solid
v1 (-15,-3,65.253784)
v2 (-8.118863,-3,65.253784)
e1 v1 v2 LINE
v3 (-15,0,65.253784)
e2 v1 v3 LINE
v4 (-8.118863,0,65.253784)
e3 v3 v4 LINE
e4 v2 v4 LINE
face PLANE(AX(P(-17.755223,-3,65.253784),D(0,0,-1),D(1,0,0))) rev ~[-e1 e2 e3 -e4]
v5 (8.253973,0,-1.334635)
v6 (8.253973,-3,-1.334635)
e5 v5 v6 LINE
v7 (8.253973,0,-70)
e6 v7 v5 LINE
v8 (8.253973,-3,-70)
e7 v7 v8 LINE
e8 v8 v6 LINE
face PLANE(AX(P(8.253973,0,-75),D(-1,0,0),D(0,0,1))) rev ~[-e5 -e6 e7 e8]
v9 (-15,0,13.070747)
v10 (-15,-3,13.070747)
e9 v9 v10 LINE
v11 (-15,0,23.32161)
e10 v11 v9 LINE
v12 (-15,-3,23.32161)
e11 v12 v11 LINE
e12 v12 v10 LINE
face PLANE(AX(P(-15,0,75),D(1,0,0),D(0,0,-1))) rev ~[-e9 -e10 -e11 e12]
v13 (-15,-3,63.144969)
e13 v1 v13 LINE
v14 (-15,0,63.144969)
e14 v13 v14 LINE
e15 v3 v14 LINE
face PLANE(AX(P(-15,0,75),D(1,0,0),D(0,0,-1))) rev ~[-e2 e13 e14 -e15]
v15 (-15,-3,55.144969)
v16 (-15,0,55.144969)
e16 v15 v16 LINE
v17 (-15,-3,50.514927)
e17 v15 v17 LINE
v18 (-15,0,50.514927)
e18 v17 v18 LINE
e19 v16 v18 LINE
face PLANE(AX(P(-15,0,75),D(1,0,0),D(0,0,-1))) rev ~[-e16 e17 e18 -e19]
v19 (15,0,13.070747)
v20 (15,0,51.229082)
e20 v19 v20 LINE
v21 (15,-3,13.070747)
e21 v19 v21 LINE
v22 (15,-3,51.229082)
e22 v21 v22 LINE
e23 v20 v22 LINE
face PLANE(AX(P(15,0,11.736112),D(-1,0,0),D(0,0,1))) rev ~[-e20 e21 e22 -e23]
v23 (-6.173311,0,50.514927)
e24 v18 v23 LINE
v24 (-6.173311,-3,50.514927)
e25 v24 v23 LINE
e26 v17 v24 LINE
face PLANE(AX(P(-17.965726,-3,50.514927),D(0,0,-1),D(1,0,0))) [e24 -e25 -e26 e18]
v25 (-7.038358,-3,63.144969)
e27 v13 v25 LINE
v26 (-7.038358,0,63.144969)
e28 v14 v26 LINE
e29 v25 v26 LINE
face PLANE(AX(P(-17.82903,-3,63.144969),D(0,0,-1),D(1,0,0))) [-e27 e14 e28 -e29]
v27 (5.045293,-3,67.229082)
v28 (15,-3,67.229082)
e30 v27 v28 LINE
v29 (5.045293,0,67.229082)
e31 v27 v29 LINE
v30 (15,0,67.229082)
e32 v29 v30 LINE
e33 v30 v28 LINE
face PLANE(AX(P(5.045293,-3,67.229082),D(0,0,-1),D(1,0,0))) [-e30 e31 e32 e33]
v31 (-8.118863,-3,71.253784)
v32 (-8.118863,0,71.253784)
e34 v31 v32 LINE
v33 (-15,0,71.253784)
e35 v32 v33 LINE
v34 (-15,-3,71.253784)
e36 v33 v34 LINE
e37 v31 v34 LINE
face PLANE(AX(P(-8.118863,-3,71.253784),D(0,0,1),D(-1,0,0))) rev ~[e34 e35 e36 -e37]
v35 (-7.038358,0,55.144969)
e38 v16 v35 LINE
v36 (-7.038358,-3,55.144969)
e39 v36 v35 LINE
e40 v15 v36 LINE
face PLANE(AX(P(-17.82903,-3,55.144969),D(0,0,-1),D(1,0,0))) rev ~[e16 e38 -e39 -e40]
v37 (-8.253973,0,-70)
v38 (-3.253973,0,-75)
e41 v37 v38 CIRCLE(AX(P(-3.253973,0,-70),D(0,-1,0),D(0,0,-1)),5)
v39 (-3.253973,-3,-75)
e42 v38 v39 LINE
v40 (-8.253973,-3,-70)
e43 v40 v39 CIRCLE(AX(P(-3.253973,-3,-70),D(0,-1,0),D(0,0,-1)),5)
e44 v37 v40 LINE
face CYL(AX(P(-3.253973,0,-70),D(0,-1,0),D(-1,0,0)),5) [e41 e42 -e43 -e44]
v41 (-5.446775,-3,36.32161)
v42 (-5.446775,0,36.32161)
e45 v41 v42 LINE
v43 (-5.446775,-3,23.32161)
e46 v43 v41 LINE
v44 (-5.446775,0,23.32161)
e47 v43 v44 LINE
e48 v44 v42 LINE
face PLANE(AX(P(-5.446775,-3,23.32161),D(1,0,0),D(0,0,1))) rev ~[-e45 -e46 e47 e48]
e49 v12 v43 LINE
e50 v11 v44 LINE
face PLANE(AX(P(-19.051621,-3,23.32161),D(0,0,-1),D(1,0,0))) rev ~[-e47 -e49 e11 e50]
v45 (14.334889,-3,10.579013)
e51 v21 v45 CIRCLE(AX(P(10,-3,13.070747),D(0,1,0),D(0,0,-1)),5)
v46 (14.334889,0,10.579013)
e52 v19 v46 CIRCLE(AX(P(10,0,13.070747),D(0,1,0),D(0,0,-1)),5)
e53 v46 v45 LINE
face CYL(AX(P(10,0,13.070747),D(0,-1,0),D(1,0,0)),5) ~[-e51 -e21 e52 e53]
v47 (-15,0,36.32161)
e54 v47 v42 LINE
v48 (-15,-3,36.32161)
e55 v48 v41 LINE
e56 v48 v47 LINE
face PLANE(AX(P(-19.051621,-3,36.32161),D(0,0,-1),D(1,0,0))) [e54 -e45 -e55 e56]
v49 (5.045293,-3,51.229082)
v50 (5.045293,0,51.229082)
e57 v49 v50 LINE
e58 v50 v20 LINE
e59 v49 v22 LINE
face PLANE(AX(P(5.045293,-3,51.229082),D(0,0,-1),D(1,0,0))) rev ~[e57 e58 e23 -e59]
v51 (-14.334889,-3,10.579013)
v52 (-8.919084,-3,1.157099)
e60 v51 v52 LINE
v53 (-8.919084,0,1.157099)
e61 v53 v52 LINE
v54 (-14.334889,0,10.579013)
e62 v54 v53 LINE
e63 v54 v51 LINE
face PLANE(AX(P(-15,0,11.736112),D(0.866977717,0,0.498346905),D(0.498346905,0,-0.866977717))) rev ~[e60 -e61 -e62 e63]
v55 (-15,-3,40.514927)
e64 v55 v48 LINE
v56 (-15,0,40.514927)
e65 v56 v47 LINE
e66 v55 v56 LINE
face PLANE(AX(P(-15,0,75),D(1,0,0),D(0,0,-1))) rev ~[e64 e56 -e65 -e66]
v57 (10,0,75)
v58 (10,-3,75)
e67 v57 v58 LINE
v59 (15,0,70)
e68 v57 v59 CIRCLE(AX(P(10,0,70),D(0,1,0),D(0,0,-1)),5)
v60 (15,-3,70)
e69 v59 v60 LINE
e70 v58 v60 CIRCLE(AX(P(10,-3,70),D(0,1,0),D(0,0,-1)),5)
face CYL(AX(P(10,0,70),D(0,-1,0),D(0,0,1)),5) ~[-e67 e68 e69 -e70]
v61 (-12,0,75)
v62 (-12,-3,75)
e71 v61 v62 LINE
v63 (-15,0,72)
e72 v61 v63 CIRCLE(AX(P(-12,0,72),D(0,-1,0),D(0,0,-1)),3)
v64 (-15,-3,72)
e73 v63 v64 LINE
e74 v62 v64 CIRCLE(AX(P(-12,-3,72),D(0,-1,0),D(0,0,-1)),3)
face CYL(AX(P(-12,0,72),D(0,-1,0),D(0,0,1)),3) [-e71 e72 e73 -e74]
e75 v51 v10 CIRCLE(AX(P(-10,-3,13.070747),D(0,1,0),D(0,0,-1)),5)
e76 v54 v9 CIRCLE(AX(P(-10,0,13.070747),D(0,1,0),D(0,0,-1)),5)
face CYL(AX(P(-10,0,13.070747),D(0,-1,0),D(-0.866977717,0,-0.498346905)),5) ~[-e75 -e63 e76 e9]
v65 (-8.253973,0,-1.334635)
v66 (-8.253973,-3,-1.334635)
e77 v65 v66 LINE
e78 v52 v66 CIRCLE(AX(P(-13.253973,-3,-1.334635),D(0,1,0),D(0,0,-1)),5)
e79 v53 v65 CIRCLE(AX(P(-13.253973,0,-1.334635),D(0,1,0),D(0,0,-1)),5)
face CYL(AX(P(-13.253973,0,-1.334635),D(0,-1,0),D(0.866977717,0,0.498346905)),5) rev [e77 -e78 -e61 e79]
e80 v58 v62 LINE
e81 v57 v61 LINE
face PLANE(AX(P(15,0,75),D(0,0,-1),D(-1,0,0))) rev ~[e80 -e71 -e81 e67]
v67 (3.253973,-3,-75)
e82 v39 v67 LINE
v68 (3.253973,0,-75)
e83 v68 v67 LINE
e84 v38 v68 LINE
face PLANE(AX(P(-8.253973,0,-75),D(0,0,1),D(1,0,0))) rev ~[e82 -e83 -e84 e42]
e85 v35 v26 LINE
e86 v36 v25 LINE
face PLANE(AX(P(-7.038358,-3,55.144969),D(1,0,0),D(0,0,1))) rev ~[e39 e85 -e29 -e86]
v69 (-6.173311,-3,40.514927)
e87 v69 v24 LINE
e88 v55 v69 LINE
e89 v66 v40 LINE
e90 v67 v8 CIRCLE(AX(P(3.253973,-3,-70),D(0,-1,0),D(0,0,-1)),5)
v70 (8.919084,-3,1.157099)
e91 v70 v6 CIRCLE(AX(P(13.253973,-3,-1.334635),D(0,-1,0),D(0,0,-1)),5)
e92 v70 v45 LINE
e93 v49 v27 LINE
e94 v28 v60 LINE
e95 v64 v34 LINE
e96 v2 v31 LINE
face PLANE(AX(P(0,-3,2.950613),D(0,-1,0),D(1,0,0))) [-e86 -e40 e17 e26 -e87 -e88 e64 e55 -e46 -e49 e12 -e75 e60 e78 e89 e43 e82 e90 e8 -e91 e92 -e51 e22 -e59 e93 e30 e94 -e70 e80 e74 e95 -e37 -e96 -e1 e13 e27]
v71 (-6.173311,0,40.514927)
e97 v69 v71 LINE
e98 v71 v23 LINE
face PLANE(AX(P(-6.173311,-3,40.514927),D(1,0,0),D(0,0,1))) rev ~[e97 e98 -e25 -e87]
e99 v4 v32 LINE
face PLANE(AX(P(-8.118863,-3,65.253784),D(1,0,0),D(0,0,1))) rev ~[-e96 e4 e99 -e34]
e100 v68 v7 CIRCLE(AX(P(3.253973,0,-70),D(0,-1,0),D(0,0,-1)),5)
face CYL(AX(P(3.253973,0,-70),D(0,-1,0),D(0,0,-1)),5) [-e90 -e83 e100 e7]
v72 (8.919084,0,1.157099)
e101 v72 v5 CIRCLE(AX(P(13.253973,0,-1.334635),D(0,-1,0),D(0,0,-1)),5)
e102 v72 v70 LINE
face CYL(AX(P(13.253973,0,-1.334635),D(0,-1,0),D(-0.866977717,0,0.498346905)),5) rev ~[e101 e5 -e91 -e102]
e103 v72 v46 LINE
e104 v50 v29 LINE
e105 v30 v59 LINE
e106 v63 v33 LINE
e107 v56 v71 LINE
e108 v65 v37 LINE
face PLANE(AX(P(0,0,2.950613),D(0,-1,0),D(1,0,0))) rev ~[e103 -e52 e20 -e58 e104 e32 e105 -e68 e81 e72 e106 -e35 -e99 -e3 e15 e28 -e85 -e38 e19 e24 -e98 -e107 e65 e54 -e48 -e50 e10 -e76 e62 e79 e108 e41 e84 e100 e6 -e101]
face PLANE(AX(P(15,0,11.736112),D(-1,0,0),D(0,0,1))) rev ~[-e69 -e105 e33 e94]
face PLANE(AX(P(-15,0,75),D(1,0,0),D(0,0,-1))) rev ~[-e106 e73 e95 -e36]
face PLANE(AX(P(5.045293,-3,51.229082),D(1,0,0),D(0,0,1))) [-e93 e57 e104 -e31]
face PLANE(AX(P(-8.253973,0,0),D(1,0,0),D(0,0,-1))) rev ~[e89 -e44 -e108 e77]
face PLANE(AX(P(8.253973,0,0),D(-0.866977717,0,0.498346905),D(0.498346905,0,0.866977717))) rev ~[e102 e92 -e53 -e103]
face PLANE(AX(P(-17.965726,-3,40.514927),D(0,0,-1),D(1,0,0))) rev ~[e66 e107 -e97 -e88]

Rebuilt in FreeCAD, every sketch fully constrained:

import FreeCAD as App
import Part
import Sketcher


def edges_at(feature, points):
    """Names of the edges that pass closest to the given points."""
    edges = feature.Shape.Edges
    near = lambda p: min(range(len(edges)), key=lambda i: edges[i].distToShape(Part.Vertex(*p))[0])
    return sorted({f"Edge{near(p) + 1}" for p in points})


def add_polygon(sketch, points):
    """Adds a closed chain of lines whose ends are joined by coincident constraints."""
    first, n = sketch.GeometryCount, len(points)
    for a, b in zip(points, points[1:] + points[:1]):
        sketch.addGeometry(Part.LineSegment(App.Vector(*a, 0), App.Vector(*b, 0)), False)
    for i in range(n):
        sketch.addConstraint(Sketcher.Constraint("Coincident", first + i, 2, first + (i + 1) % n, 1))

doc = App.newDocument("Part")
body = doc.addObject("PartDesign::Body", "Body")

# Sketch on XZ plane
sketch1 = body.newObject("Sketcher::SketchObject", "Sketch")
sketch1.AttachmentSupport = (doc.getObject("XZ_Plane"), [""])
sketch1.MapMode = "FlatFace"
add_polygon(sketch1, [(15, 75), (-15, 75), (-15, 11.736112), (-8.253973, 0), (-8.253973, -75), (8.253973, -75), (8.253973, 0), (15, 11.736112)])  # lines 0-7
sketch1.addConstraint([
    Sketcher.Constraint("Horizontal", 0),
    Sketcher.Constraint("Vertical", 1),
    Sketcher.Constraint("Vertical", 3),
    Sketcher.Constraint("Horizontal", 4),
    Sketcher.Constraint("Vertical", 5),
    Sketcher.Constraint("Vertical", 7),
    Sketcher.Constraint("Symmetric", 2, 2, 5, 2, -1, 1),
    Sketcher.Constraint("Symmetric", 1, 2, 6, 2, -2),
    Sketcher.Constraint("PointOnObject", 2, 2, -1),
    Sketcher.Constraint("DistanceX", 0, 2, 0, 1, 30.0),
    Sketcher.Constraint("DistanceY", 3, 2, 3, 1, 75.0),
    Sketcher.Constraint("DistanceY", -1, 1, 0, 2, 75.0),
    Sketcher.Constraint("Distance", 2, 13.536809),
    Sketcher.Constraint("DistanceX", 4, 1, 4, 2, 16.507946),
])
pad1 = body.newObject("PartDesign::Pad", "Pad")
pad1.Profile = sketch1
pad1.Length = 3

# Sketch on XZ plane
sketch2 = body.newObject("Sketcher::SketchObject", "Sketch001")
sketch2.AttachmentSupport = (doc.getObject("XZ_Plane"), [""])
sketch2.MapMode = "FlatFace"
sketch2.AttachmentOffset = App.Placement(App.Vector(0, 0, 3), App.Rotation())
add_polygon(sketch2, [(-8.118863, 71.253784), (-17.755223, 71.253784), (-17.755223, 65.253784), (-8.118863, 65.253784)])  # lines 0-3
add_polygon(sketch2, [(-17.82903, 63.144969), (-17.82903, 55.144969), (-7.038358, 55.144969), (-7.038358, 63.144969)])  # lines 4-7
add_polygon(sketch2, [(-17.965726, 50.514927), (-17.965726, 40.514927), (-6.173311, 40.514927), (-6.173311, 50.514927)])  # lines 8-11
add_polygon(sketch2, [(-19.051621, 36.32161), (-19.051621, 23.32161), (-5.446775, 23.32161), (-5.446775, 36.32161)])  # lines 12-15
add_polygon(sketch2, [(5.045293, 67.229082), (5.045293, 51.229082), (23.864356, 51.229082), (23.864356, 67.229082)])  # lines 16-19
sketch2.addConstraint([
    Sketcher.Constraint("Horizontal", 0),
    Sketcher.Constraint("Vertical", 1),
    Sketcher.Constraint("Horizontal", 2),
    Sketcher.Constraint("Vertical", 3),
    Sketcher.Constraint("Vertical", 4),
    Sketcher.Constraint("Horizontal", 5),
    Sketcher.Constraint("Vertical", 6),
    Sketcher.Constraint("Horizontal", 7),
    Sketcher.Constraint("Vertical", 8),
    Sketcher.Constraint("Horizontal", 9),
    Sketcher.Constraint("Vertical", 10),
    Sketcher.Constraint("Horizontal", 11),
    Sketcher.Constraint("Vertical", 12),
    Sketcher.Constraint("Horizontal", 13),
    Sketcher.Constraint("Vertical", 14),
    Sketcher.Constraint("Horizontal", 15),
    Sketcher.Constraint("Vertical", 16),
    Sketcher.Constraint("Horizontal", 17),
    Sketcher.Constraint("Vertical", 18),
    Sketcher.Constraint("Horizontal", 19),
    Sketcher.Constraint("DistanceY", 1, 2, 1, 1, 6.0),
    Sketcher.Constraint("DistanceY", 4, 2, 4, 1, 8.0),
    Sketcher.Constraint("DistanceY", 8, 2, 8, 1, 10.0),
    Sketcher.Constraint("DistanceY", 12, 2, 12, 1, 13.0),
    Sketcher.Constraint("DistanceY", 16, 2, 16, 1, 16.0),
    Sketcher.Constraint("DistanceX", 0, 2, 0, 1, 9.63636),
    Sketcher.Constraint("DistanceY", 2, 2, 18, 2, 1.975298),
    Sketcher.Constraint("DistanceX", 5, 1, 5, 2, 10.790673),
    Sketcher.Constraint("DistanceX", 9, 1, 9, 2, 11.792415),
    Sketcher.Constraint("DistanceX", 13, 1, 13, 2, 13.604847),
    Sketcher.Constraint("DistanceX", 17, 1, 17, 2, 18.819063),
    Sketcher.Constraint("DistanceX", 4, 2, -1, 1, 17.82903),
    Sketcher.Constraint("DistanceY", -1, 1, 4, 2, 55.144969),
    Sketcher.Constraint("DistanceX", 9, 2, -1, 1, 6.173311),
    Sketcher.Constraint("DistanceX", 12, 2, -1, 1, 19.051621),
    Sketcher.Constraint("DistanceY", -1, 1, 12, 2, 23.32161),
    Sketcher.Constraint("DistanceY", -1, 1, 16, 2, 51.229082),
    Sketcher.Constraint("DistanceX", 2, 2, 9, 2, 1.945551),
    Sketcher.Constraint("DistanceX", 5, 2, 16, 2, 12.083651),
    Sketcher.Constraint("DistanceY", -1, 1, 8, 2, 40.514927),
])
pocket1 = body.newObject("PartDesign::Pocket", "Pocket")
pocket1.Profile = sketch2
pocket1.Length = 25
doc.recompute()

fillet = body.newObject("PartDesign::Fillet", "Fillet")
fillet.Base = (pocket1, edges_at(pocket1, [(15, -1.5, 75)]))
fillet.Radius = 5
doc.recompute()

fillet2 = body.newObject("PartDesign::Fillet", "Fillet001")
fillet2.Base = (fillet, edges_at(fillet, [(-15, -1.5, 75)]))
fillet2.Radius = 3
doc.recompute()

fillet3 = body.newObject("PartDesign::Fillet", "Fillet002")
fillet3.Base = (fillet2, edges_at(fillet2, [(15, -1.5, 11.736)]))
fillet3.Radius = 5
doc.recompute()

fillet4 = body.newObject("PartDesign::Fillet", "Fillet003")
fillet4.Base = (fillet3, edges_at(fillet3, [(8.254, -1.5, 0)]))
fillet4.Radius = 5
doc.recompute()

fillet5 = body.newObject("PartDesign::Fillet", "Fillet004")
fillet5.Base = (fillet4, edges_at(fillet4, [(-15, -1.5, 11.736)]))
fillet5.Radius = 5
doc.recompute()

fillet6 = body.newObject("PartDesign::Fillet", "Fillet005")
fillet6.Base = (fillet5, edges_at(fillet5, [(-8.254, -1.5, 0)]))
fillet6.Radius = 5
doc.recompute()

fillet7 = body.newObject("PartDesign::Fillet", "Fillet006")
fillet7.Base = (fillet6, edges_at(fillet6, [(-8.254, -1.5, -75)]))
fillet7.Radius = 5
doc.recompute()

fillet8 = body.newObject("PartDesign::Fillet", "Fillet007")
fillet8.Base = (fillet7, edges_at(fillet7, [(8.254, -1.5, -75)]))
fillet8.Radius = 5

doc.recompute()
